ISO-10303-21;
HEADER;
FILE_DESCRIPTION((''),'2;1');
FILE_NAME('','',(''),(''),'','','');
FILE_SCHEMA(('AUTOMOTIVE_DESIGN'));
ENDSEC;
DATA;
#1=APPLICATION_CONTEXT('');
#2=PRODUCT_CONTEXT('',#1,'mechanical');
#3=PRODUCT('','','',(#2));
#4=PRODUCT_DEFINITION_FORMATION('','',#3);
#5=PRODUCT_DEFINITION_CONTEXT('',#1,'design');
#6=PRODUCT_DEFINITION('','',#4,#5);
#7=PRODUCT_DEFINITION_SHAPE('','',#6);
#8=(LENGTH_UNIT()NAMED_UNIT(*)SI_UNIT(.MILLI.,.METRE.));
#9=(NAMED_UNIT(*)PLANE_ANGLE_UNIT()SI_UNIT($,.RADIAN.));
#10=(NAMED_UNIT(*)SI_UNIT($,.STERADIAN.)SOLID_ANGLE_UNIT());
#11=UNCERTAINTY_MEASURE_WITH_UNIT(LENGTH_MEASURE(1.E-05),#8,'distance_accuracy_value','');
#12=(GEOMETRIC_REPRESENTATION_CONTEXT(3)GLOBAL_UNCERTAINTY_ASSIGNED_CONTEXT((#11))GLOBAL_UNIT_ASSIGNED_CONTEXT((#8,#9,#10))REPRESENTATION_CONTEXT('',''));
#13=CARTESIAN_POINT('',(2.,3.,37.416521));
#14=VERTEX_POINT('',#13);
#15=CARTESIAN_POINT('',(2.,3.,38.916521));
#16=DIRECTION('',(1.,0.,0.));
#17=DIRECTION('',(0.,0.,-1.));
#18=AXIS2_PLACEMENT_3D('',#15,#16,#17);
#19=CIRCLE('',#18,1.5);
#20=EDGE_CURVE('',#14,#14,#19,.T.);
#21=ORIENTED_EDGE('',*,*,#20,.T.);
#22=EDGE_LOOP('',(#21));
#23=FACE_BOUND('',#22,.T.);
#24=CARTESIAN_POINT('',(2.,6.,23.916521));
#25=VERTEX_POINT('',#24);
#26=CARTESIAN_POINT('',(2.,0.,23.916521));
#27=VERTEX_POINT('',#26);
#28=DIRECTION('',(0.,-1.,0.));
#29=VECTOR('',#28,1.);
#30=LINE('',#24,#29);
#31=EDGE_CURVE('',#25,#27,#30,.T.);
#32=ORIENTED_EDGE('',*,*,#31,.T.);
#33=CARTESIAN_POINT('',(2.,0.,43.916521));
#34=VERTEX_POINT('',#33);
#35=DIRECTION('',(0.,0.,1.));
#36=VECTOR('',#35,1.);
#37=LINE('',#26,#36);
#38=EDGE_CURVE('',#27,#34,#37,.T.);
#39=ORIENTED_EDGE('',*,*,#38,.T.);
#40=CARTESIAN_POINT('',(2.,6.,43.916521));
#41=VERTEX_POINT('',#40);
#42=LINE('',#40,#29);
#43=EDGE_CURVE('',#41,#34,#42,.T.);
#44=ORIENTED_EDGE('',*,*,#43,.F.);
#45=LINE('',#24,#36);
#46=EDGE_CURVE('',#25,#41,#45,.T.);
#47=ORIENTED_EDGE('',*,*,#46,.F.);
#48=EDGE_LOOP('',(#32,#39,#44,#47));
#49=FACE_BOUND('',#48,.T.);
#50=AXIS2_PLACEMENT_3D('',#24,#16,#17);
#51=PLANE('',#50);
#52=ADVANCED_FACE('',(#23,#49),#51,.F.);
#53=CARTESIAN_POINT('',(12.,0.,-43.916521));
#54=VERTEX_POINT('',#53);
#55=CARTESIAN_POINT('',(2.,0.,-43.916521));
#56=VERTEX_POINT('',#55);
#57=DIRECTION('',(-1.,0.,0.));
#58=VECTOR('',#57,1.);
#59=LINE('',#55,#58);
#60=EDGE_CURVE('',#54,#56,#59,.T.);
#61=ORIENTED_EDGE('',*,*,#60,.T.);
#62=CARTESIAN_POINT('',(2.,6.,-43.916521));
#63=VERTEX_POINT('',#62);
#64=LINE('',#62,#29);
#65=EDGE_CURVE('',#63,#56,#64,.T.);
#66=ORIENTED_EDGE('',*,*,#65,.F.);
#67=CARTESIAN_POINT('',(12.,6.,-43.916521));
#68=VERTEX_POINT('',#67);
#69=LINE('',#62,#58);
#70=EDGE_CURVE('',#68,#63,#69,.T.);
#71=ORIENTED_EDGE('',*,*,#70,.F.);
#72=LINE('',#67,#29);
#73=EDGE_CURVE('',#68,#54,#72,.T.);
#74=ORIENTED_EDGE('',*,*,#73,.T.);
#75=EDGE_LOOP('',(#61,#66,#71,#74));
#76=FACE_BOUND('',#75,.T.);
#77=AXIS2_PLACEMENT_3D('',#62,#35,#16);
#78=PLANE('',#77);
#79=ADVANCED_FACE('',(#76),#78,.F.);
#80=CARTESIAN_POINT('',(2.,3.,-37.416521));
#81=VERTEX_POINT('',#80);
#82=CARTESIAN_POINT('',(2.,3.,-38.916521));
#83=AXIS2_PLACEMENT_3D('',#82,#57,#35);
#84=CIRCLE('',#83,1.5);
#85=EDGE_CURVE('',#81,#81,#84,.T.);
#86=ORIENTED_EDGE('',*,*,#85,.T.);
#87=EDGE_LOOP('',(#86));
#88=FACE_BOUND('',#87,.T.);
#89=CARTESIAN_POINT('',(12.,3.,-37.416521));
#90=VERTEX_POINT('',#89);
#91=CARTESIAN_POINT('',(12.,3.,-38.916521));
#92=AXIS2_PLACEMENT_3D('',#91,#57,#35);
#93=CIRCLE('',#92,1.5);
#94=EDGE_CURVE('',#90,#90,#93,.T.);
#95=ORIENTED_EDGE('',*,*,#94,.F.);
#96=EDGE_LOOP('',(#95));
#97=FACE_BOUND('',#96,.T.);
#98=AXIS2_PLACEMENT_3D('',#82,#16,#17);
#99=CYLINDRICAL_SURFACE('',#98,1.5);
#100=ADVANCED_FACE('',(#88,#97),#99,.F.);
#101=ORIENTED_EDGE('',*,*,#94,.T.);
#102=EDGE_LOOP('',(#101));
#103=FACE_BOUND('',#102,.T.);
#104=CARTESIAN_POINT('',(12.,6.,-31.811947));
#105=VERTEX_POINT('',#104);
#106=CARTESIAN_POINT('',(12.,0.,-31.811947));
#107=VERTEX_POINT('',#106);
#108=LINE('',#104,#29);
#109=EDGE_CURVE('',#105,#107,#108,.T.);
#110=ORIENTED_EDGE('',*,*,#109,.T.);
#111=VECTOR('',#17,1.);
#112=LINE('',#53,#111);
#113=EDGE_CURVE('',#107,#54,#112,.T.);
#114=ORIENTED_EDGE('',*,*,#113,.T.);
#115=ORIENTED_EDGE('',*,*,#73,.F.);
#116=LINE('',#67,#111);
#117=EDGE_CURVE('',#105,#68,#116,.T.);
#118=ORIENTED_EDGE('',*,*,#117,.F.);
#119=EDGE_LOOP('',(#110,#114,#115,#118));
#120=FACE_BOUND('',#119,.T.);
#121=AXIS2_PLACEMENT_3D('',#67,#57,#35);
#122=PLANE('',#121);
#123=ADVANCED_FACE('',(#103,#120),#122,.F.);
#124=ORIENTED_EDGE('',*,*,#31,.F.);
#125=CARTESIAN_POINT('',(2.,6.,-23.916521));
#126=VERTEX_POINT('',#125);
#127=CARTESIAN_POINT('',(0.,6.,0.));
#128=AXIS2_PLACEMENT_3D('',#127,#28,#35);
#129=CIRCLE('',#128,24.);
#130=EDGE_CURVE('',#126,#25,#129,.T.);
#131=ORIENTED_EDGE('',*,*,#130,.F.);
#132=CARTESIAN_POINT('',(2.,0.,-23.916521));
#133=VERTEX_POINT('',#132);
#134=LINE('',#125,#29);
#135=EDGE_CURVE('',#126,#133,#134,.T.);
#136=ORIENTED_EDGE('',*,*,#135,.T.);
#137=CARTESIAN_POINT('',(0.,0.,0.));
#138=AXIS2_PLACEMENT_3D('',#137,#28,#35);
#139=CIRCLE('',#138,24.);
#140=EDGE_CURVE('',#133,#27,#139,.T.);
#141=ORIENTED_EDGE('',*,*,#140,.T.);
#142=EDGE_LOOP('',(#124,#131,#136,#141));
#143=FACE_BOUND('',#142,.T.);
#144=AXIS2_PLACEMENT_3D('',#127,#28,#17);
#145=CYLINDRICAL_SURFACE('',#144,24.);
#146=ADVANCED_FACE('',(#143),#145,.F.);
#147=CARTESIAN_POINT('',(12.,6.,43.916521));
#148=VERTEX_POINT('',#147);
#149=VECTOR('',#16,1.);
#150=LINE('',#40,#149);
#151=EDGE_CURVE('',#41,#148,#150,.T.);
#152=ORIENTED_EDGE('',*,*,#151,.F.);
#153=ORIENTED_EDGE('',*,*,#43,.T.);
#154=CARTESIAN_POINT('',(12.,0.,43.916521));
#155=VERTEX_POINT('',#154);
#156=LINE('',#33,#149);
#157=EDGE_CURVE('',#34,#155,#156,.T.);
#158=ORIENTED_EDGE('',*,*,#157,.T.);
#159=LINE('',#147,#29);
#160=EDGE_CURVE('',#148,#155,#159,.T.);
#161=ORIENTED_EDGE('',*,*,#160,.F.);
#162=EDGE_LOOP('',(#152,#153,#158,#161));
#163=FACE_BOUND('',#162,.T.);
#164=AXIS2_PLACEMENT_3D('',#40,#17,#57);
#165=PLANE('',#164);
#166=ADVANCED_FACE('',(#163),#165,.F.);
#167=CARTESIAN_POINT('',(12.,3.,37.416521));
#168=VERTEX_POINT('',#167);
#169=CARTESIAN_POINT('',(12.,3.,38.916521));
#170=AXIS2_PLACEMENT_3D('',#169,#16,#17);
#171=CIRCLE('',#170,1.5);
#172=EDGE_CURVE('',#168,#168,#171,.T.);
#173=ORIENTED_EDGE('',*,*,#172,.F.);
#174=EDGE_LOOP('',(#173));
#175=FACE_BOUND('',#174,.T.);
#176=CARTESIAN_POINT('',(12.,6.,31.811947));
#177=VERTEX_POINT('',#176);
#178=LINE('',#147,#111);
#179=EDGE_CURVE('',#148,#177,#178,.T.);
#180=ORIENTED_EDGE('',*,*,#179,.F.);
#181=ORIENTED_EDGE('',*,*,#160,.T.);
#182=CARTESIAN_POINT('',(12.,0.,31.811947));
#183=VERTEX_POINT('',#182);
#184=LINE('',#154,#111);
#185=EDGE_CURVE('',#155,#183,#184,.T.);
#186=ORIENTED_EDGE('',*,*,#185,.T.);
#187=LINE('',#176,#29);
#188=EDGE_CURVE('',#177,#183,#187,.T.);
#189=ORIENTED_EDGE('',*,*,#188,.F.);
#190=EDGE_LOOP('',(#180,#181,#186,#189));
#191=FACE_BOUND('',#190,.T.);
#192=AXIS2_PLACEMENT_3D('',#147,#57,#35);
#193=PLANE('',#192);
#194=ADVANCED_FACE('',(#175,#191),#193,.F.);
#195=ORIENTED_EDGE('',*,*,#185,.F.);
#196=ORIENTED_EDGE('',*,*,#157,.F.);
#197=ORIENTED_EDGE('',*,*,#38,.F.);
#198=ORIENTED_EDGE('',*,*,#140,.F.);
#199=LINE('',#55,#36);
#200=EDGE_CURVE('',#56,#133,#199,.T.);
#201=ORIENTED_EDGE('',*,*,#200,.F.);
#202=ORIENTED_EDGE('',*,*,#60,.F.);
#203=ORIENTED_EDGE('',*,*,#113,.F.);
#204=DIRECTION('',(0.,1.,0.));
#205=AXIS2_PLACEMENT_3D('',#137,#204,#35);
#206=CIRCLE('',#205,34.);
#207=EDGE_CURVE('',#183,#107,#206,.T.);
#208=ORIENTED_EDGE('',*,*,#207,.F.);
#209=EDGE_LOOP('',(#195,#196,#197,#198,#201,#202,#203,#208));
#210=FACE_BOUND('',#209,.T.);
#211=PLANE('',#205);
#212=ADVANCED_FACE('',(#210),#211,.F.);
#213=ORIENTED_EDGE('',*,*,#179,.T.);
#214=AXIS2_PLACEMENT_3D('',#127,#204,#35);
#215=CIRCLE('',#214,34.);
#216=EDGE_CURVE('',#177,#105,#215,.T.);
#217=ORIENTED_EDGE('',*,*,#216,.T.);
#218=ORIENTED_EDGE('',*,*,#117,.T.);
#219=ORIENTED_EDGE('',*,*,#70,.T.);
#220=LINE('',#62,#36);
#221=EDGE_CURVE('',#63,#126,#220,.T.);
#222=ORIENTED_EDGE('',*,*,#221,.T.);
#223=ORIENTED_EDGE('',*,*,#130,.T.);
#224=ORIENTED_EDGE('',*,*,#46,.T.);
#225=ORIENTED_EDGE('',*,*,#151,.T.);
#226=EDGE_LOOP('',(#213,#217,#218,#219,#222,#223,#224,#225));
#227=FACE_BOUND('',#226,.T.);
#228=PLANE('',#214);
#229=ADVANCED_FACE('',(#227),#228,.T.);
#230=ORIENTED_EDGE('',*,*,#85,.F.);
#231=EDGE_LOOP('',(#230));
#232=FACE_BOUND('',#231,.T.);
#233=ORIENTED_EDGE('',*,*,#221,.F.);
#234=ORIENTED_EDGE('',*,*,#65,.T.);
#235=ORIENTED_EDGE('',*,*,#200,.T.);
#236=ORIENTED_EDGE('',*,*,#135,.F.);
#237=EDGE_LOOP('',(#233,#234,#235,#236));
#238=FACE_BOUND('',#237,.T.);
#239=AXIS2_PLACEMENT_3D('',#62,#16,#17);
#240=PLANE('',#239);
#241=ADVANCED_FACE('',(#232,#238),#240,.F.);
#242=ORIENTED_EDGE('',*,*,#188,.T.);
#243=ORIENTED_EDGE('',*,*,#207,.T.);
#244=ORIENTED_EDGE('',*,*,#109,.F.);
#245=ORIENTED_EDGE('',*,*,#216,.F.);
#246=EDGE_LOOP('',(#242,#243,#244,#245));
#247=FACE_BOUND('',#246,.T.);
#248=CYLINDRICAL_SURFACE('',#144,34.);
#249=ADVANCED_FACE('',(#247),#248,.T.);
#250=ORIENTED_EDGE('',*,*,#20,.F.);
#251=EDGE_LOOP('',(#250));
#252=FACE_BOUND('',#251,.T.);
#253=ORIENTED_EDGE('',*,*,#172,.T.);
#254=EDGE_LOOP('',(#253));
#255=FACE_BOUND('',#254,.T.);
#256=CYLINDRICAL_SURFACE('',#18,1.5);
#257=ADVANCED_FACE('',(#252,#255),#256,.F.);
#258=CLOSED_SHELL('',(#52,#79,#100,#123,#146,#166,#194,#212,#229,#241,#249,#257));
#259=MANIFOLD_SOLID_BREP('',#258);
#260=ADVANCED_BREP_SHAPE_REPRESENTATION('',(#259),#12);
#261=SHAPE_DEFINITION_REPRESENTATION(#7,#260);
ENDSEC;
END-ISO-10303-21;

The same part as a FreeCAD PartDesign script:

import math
import FreeCAD as App
import Part
import Sketcher

V = App.Vector

doc = App.newDocument("Part")
params = doc.addObject("Spreadsheet::Sheet", "Params")
for row, (alias, value) in enumerate([
    ("sketch1_radius", "24 mm"),
    ("sketch1_radius2", "34 mm"),
    ("sketch1_width", "10 mm"),
    ("sketch1_height", "20 mm"),
    ("pad1_length", "6 mm"),
    ("sketch2_diameter", "3 mm"),
], start=1):
    params.set(f"A{row}", alias)
    params.set(f"B{row}", "=" + value)
    params.setAlias(f"B{row}", alias)

body = doc.addObject("PartDesign::Body", "Body")

sketch1 = body.newObject("Sketcher::SketchObject", "Sketch")
sketch1.AttachmentSupport = (doc.getObject("XZ_Plane"), [""])
sketch1.MapMode = "FlatFace"
sketch1.addGeometry(Part.LineSegment(V(2, -43.916521, 0), V(2, -23.916521, 0)), False)
sketch1.addGeometry(Part.ArcOfCircle(Part.Circle(V(0, 0, 0), V(0, 0, 1), 24), math.radians(-85.219808), math.radians(85.219808)), False)
sketch1.addGeometry(Part.LineSegment(V(2, 23.916521, 0), V(2, 43.916521, 0)), False)
sketch1.addGeometry(Part.LineSegment(V(2, 43.916521, 0), V(12, 43.916521, 0)), False)
sketch1.addGeometry(Part.LineSegment(V(12, 43.916521, 0), V(12, 31.811947, 0)), False)
sketch1.addGeometry(Part.ArcOfCircle(Part.Circle(V(0, 0, 0), V(0, 0, 1), 34), math.radians(-5.062093), math.radians(69.332684)), False)
sketch1.addGeometry(Part.ArcOfCircle(Part.Circle(V(0, 0, 0), V(0, 0, 1), 34), math.radians(-69.332684), math.radians(-5.062093)), False)
sketch1.addGeometry(Part.LineSegment(V(12, -31.811947, 0), V(12, -43.916521, 0)), False)
sketch1.addGeometry(Part.LineSegment(V(12, -43.916521, 0), V(2, -43.916521, 0)), False)
sketch1.addConstraint(Sketcher.Constraint("Coincident", 0, 2, 1, 1))
sketch1.addConstraint(Sketcher.Constraint("Coincident", 1, 2, 2, 1))
sketch1.addConstraint(Sketcher.Constraint("Coincident", 2, 2, 3, 1))
sketch1.addConstraint(Sketcher.Constraint("Coincident", 3, 2, 4, 1))
sketch1.addConstraint(Sketcher.Constraint("Coincident", 4, 2, 5, 2))
sketch1.addConstraint(Sketcher.Constraint("Tangent", 5, 1, 6, 2))
sketch1.addConstraint(Sketcher.Constraint("Coincident", 6, 1, 7, 1))
sketch1.addConstraint(Sketcher.Constraint("Coincident", 7, 2, 8, 1))
sketch1.addConstraint(Sketcher.Constraint("Coincident", 8, 2, 0, 1))
sketch1.addConstraint(Sketcher.Constraint("Vertical", 0))
sketch1.addConstraint(Sketcher.Constraint("Vertical", 2))
sketch1.addConstraint(Sketcher.Constraint("Horizontal", 3))
sketch1.addConstraint(Sketcher.Constraint("Vertical", 4))
sketch1.addConstraint(Sketcher.Constraint("Vertical", 7))
sketch1.addConstraint(Sketcher.Constraint("Horizontal", 8))
sketch1.addConstraint(Sketcher.Constraint("Coincident", 1, 3, -1, 1))
sketch1.addConstraint(Sketcher.Constraint("Coincident", 5, 3, -1, 1))
sketch1.addConstraint(Sketcher.Constraint("Equal", 5, 6))
sketch1.addConstraint(Sketcher.Constraint("Symmetric", 3, 2, 7, 2, -1))
sketch1.addConstraint(Sketcher.Constraint("Vertical", 0, 2, 1, 2))
sketch1.addConstraint(Sketcher.Constraint("Radius", 1, 24.0))
sketch1.addConstraint(Sketcher.Constraint("Radius", 5, 34.0))
sketch1.addConstraint(Sketcher.Constraint("DistanceX", 3, 1, 3, 2, 10.0))
sketch1.addConstraint(Sketcher.Constraint("DistanceY", 0, 1, 0, 2, 20.0))
sketch1.addConstraint(Sketcher.Constraint("DistanceX", -1, 1, 0, 2, 2.0))
sketch1.addConstraint(Sketcher.Constraint("DistanceY", 5, 1, -1, 1, 3.0))
sketch1.setExpression("Constraints[20]", "Params.sketch1_radius")
sketch1.setExpression("Constraints[21]", "Params.sketch1_radius2")
sketch1.setExpression("Constraints[22]", "Params.sketch1_width")
sketch1.setExpression("Constraints[23]", "Params.sketch1_height")
pad1 = body.newObject("PartDesign::Pad", "Pad")
pad1.Profile = sketch1
pad1.setExpression("Length", "Params.pad1_length")
pad1.Reversed = True

sketch2 = body.newObject("Sketcher::SketchObject", "Sketch001")
sketch2.AttachmentSupport = (doc.getObject("YZ_Plane"), [""])
sketch2.MapMode = "FlatFace"
sketch2.AttachmentOffset = App.Placement(V(0, 0, 12), App.Rotation())
sketch2.addGeometry(Part.Circle(V(3, 38.916521, 0), V(0, 0, 1), 1.5), False)
sketch2.addConstraint(Sketcher.Constraint("Diameter", 0, 3.0))
sketch2.addConstraint(Sketcher.Constraint("DistanceX", -1, 1, 0, 3, 3.0))
sketch2.addConstraint(Sketcher.Constraint("DistanceY", -1, 1, 0, 3, 38.916521))
sketch2.setExpression("Constraints[0]", "Params.sketch2_diameter")
pocket1 = body.newObject("PartDesign::Pocket", "Pocket")
pocket1.Profile = sketch2
pocket1.Type = "ThroughAll"
doc.recompute()

mirrored = body.newObject("PartDesign::Mirrored", "Mirrored")
mirrored.Originals = [pocket1]
mirrored.MirrorPlane = (doc.getObject("XY_Plane"), [""])
body.Tip = mirrored

doc.recompute()
